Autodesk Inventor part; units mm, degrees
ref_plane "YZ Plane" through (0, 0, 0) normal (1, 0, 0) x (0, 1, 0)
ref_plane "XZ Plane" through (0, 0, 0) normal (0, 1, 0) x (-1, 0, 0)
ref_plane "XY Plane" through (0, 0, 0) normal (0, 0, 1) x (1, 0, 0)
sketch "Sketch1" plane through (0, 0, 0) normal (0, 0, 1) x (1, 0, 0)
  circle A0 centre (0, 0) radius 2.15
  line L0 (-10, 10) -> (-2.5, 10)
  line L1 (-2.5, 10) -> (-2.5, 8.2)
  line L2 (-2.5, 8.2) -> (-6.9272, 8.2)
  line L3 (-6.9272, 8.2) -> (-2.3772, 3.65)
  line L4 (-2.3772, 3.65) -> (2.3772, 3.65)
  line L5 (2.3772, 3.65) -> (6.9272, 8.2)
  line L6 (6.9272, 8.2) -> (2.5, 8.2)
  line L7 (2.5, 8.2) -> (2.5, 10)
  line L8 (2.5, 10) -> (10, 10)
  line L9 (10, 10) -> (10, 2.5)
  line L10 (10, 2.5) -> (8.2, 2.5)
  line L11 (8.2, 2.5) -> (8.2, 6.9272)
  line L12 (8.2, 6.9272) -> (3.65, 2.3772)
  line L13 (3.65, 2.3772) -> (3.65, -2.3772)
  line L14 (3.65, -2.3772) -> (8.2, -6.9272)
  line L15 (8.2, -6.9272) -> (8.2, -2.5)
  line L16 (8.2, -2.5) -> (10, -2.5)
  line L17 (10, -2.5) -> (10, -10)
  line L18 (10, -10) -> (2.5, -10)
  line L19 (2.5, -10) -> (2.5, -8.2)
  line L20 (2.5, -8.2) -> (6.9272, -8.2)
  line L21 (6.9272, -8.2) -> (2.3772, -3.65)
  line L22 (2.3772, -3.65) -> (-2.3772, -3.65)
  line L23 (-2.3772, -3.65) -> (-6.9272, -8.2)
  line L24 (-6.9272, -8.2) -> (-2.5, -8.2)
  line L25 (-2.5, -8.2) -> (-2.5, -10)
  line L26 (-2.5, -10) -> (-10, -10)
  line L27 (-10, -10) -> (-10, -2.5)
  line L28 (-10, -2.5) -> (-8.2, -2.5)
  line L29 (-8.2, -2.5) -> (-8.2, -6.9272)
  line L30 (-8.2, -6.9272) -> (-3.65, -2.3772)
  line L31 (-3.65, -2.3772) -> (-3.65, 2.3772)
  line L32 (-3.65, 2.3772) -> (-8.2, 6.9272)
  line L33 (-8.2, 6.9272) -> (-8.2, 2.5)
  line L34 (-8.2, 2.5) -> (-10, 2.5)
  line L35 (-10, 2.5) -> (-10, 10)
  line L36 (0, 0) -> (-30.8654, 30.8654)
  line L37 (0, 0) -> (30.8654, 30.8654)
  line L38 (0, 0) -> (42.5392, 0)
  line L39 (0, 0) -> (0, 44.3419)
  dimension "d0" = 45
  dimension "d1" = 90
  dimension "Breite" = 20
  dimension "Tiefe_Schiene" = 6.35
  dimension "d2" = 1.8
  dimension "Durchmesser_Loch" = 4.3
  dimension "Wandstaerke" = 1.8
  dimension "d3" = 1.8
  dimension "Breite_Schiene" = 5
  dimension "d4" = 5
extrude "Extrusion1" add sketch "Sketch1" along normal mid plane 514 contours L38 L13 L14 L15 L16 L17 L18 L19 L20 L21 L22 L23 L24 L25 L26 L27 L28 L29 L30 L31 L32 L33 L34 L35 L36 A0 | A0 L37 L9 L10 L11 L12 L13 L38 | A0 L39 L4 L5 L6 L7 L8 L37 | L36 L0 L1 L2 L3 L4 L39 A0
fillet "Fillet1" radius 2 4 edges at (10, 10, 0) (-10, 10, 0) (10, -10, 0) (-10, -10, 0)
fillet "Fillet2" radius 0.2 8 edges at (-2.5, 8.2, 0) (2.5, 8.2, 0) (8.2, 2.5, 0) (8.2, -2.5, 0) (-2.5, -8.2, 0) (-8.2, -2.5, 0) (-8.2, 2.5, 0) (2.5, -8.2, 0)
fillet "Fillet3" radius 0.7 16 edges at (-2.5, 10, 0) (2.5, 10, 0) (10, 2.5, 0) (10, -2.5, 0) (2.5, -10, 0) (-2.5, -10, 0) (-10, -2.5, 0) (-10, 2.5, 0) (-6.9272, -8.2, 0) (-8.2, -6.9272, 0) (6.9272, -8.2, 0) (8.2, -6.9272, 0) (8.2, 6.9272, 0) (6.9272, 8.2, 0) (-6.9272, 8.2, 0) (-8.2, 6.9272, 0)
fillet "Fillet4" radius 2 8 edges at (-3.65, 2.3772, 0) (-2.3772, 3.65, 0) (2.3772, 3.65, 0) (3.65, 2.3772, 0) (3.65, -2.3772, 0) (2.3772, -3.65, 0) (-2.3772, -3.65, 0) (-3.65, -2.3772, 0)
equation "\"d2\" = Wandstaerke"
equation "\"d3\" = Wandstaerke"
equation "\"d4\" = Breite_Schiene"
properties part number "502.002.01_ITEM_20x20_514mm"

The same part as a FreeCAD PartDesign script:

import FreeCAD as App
import Part
import Sketcher


def edges_at(feature, points):
    """Names of the edges that pass closest to the given points."""
    edges = feature.Shape.Edges
    near = lambda p: min(range(len(edges)), key=lambda i: edges[i].distToShape(Part.Vertex(*p))[0])
    return sorted({f"Edge{near(p) + 1}" for p in points})


def add_polygon(sketch, points):
    """Adds a closed chain of lines whose ends are joined by coincident constraints."""
    first, n = sketch.GeometryCount, len(points)
    for a, b in zip(points, points[1:] + points[:1]):
        sketch.addGeometry(Part.LineSegment(App.Vector(*a, 0), App.Vector(*b, 0)), False)
    for i in range(n):
        sketch.addConstraint(Sketcher.Constraint("Coincident", first + i, 2, first + (i + 1) % n, 1))

doc = App.newDocument("Part")
body = doc.addObject("PartDesign::Body", "Body")

sketch1 = doc.addObject("Sketcher::SketchObject", "Sketch")
body.addObject(sketch1)
sketch1.AttachmentSupport = (doc.XY_Plane, [""])
sketch1.MapMode = "FlatFace"
add_polygon(sketch1, [(3.65, -2.3772), (3.65, 2.3772), (8.2, 6.9272), (8.2, 2.5), (10, 2.5), (10, 10), (2.5, 10), (2.5, 8.2), (6.9272, 8.2), (2.3772, 3.65), (-2.3772, 3.65), (-6.9272, 8.2), (-2.5, 8.2), (-2.5, 10), (-10, 10), (-10, 2.5), (-8.2, 2.5), (-8.2, 6.9272), (-3.65, 2.3772), (-3.65, -2.3772), (-8.2, -6.9272), (-8.2, -2.5), (-10, -2.5), (-10, -10), (-2.5, -10), (-2.5, -8.2), (-6.9272, -8.2), (-2.3772, -3.65), (2.3772, -3.65), (6.9272, -8.2), (2.5, -8.2), (2.5, -10), (10, -10), (10, -2.5), (8.2, -2.5), (8.2, -6.9272)])
sketch1.addGeometry(Part.Circle(App.Vector(0, 0, 0), App.Vector(0, 0, 1), 2.15), False)
sketch1.addConstraint([
    Sketcher.Constraint("Vertical", 0),
    Sketcher.Constraint("Vertical", 2),
    Sketcher.Constraint("Horizontal", 3),
    Sketcher.Constraint("Vertical", 4),
    Sketcher.Constraint("Horizontal", 5),
    Sketcher.Constraint("Vertical", 6),
    Sketcher.Constraint("Horizontal", 7),
    Sketcher.Constraint("Horizontal", 9),
    Sketcher.Constraint("Horizontal", 11),
    Sketcher.Constraint("Vertical", 12),
    Sketcher.Constraint("Horizontal", 13),
    Sketcher.Constraint("Vertical", 14),
    Sketcher.Constraint("Horizontal", 15),
    Sketcher.Constraint("Vertical", 16),
    Sketcher.Constraint("Vertical", 18),
    Sketcher.Constraint("Vertical", 20),
    Sketcher.Constraint("Horizontal", 21),
    Sketcher.Constraint("Vertical", 22),
    Sketcher.Constraint("Horizontal", 23),
    Sketcher.Constraint("Vertical", 24),
    Sketcher.Constraint("Horizontal", 25),
    Sketcher.Constraint("Horizontal", 27),
    Sketcher.Constraint("Horizontal", 29),
    Sketcher.Constraint("Vertical", 30),
    Sketcher.Constraint("Horizontal", 31),
    Sketcher.Constraint("Vertical", 32),
    Sketcher.Constraint("Horizontal", 33),
    Sketcher.Constraint("Vertical", 34),
    Sketcher.Constraint("Coincident", 36, 3, -1, 1),
    Sketcher.Constraint("Symmetric", 0, 2, 18, 2, -1, 1),
    Sketcher.Constraint("Symmetric", 1, 2, 19, 2, -1, 1),
    Sketcher.Constraint("Symmetric", 3, 2, 21, 2, -1, 1),
    Sketcher.Constraint("Symmetric", 5, 2, 23, 2, -1, 1),
    Sketcher.Constraint("Symmetric", 7, 2, 25, 2, -1, 1),
    Sketcher.Constraint("Symmetric", 8, 2, 26, 2, -1, 1),
    Sketcher.Constraint("Symmetric", 10, 2, 28, 2, -1, 1),
    Sketcher.Constraint("Symmetric", 12, 2, 30, 2, -1, 1),
    Sketcher.Constraint("Symmetric", 14, 2, 32, 2, -1, 1),
    Sketcher.Constraint("Symmetric", 16, 2, 34, 2, -1, 1),
    Sketcher.Constraint("Symmetric", 7, 2, 10, 2, -2),
    Sketcher.Constraint("Symmetric", 5, 2, 12, 2, -2),
    Sketcher.Constraint("Symmetric", 3, 2, 14, 2, -2),
    Sketcher.Constraint("Symmetric", 1, 2, 16, 2, -2),
    Sketcher.Constraint("Parallel", 1, 8),
    Sketcher.Constraint("Perpendicular", 8, 10),
    Sketcher.Constraint("Parallel", 10, 17),
    Sketcher.Constraint("Perpendicular", 26, 28),
    Sketcher.Constraint("Parallel", 28, 35),
    Sketcher.Constraint("Horizontal", 0, 2, 17, 2),
    Sketcher.Constraint("Equal", 27, 0),
    Sketcher.Constraint("Equal", 29, 2),
    Sketcher.Constraint("Equal", 31, 4),
    Sketcher.Constraint("Equal", 33, 6),
    Sketcher.Constraint("Equal", 1, 8),
    Sketcher.Constraint("Diameter", 36, 4.3),
    Sketcher.Constraint("DistanceX", 3, 1, 3, 2, 1.8),
    Sketcher.Constraint("DistanceX", 11, 2, 6, 2, 5.0),
    Sketcher.Constraint("DistanceX", 0, 2, 3, 2, 6.35),
    Sketcher.Constraint("DistanceX", 5, 2, 5, 1, 7.5),
    Sketcher.Constraint("DistanceX", 7, 1, 7, 2, 4.4272),
])
pad1 = doc.addObject("PartDesign::Pad", "Pad")
body.addObject(pad1)
pad1.Profile = sketch1
pad1.Length = 514
pad1.Midplane = True
doc.recompute()

fillet = doc.addObject("PartDesign::Fillet", "Fillet")
body.addObject(fillet)
fillet.Base = (pad1, edges_at(pad1, [
    (10, 10, 0),
    (-10, 10, 0),
    (10, -10, 0),
    (-10, -10, 0),
]))
fillet.Radius = 2
doc.recompute()

fillet2 = doc.addObject("PartDesign::Fillet", "Fillet001")
body.addObject(fillet2)
fillet2.Base = (fillet, edges_at(fillet, [
    (-2.5, 8.2, 0),
    (2.5, 8.2, 0),
    (8.2, 2.5, 0),
    (8.2, -2.5, 0),
    (-2.5, -8.2, 0),
    (-8.2, -2.5, 0),
    (-8.2, 2.5, 0),
    (2.5, -8.2, 0),
]))
fillet2.Radius = 0.2
doc.recompute()

fillet3 = doc.addObject("PartDesign::Fillet", "Fillet002")
body.addObject(fillet3)
fillet3.Base = (fillet2, edges_at(fillet2, [
    (-2.5, 10, 0),
    (2.5, 10, 0),
    (10, 2.5, 0),
    (10, -2.5, 0),
    (2.5, -10, 0),
    (-2.5, -10, 0),
    (-10, -2.5, 0),
    (-10, 2.5, 0),
    (-6.927, -8.2, 0),
    (-8.2, -6.927, 0),
    (6.927, -8.2, 0),
    (8.2, -6.927, 0),
    (8.2, 6.927, 0),
    (6.927, 8.2, 0),
    (-6.927, 8.2, 0),
    (-8.2, 6.927, 0),
]))
fillet3.Radius = 0.7
doc.recompute()

fillet4 = doc.addObject("PartDesign::Fillet", "Fillet003")
body.addObject(fillet4)
fillet4.Base = (fillet3, edges_at(fillet3, [
    (-3.65, 2.377, 0),
    (-2.377, 3.65, 0),
    (2.377, 3.65, 0),
    (3.65, 2.377, 0),
    (3.65, -2.377, 0),
    (2.377, -3.65, 0),
    (-2.377, -3.65, 0),
    (-3.65, -2.377, 0),
]))
fillet4.Radius = 2

doc.recompute()
